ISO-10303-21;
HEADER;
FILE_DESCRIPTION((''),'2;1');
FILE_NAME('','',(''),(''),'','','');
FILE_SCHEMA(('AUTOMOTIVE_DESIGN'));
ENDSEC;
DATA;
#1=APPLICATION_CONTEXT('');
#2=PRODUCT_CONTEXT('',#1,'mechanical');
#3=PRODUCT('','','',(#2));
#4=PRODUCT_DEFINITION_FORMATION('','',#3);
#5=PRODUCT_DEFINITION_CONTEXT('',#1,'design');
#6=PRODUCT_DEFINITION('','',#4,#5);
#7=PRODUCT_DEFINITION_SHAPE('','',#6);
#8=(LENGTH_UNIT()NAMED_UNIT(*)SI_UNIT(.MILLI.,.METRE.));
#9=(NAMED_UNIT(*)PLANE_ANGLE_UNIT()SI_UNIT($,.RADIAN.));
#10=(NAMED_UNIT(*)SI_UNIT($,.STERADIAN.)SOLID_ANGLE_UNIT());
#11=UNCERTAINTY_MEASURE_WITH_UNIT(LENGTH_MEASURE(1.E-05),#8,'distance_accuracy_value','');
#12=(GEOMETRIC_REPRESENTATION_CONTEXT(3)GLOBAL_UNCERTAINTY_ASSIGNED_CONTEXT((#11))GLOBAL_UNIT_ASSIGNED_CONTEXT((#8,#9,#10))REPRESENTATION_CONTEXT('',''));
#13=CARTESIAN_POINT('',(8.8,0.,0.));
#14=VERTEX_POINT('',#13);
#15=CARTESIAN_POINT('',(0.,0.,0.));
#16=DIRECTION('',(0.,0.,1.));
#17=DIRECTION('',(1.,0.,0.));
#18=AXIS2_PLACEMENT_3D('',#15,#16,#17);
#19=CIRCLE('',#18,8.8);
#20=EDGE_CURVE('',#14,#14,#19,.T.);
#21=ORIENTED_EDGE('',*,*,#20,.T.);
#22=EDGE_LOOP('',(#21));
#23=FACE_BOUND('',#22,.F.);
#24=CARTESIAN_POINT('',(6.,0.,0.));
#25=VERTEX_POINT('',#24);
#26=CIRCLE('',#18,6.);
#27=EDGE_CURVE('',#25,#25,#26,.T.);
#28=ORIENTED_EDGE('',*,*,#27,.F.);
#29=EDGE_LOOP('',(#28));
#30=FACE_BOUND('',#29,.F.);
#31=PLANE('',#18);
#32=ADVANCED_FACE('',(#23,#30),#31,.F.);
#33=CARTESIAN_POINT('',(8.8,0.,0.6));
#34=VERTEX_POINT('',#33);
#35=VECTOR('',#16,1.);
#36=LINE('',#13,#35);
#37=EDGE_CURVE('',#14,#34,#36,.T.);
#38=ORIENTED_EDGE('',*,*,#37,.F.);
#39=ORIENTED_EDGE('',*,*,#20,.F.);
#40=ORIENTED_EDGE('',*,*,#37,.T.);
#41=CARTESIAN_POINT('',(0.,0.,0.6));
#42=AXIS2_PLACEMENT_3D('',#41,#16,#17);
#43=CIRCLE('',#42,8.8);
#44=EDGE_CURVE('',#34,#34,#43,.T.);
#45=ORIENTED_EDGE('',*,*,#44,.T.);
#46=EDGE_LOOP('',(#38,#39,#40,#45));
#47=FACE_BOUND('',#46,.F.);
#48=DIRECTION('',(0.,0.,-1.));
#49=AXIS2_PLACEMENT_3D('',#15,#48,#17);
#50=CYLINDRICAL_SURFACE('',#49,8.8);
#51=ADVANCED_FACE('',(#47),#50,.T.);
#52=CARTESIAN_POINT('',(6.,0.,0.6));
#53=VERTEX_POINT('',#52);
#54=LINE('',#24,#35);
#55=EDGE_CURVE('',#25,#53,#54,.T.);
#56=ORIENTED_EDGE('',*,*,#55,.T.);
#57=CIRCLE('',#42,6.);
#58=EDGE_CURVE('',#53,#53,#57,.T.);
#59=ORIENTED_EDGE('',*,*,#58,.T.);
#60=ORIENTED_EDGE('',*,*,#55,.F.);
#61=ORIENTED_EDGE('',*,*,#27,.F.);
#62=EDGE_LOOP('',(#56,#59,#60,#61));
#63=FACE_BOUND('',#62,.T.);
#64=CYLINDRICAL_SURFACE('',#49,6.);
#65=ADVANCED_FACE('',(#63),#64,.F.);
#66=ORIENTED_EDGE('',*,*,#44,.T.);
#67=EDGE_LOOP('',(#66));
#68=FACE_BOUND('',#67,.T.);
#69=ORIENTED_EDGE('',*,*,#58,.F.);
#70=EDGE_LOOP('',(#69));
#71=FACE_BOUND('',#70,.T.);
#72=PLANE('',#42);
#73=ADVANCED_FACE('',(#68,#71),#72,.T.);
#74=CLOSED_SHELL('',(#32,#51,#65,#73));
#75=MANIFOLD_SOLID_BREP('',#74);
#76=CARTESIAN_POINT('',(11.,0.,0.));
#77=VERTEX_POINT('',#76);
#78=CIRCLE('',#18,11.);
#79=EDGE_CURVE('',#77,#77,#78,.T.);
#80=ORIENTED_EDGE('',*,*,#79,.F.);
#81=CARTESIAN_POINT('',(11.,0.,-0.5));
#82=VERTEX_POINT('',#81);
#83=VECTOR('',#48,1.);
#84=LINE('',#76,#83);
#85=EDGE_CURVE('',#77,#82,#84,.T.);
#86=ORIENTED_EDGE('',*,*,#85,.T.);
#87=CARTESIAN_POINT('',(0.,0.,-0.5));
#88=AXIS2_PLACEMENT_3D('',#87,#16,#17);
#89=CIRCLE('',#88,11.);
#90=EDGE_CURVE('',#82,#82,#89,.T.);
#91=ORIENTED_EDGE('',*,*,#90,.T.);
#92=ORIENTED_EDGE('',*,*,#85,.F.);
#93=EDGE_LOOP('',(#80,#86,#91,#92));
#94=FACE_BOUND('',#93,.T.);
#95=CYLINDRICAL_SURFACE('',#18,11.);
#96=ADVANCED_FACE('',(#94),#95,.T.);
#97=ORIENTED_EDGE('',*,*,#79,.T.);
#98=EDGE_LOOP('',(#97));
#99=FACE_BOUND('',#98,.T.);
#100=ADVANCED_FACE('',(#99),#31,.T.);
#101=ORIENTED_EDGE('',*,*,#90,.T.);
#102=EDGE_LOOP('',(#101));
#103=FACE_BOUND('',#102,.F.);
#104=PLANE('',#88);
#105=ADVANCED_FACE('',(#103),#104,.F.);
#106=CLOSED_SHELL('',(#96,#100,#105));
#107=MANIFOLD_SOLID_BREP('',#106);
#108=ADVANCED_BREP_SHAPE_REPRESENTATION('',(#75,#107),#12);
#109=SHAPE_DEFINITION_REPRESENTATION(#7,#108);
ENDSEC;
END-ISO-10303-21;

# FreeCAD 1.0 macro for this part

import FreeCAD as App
import Part
import Sketcher
from FreeCAD import Vector

doc = App.newDocument("Part")
body = doc.addObject("PartDesign::Body", "Body")

sketch1 = doc.addObject("Sketcher::SketchObject", "Sketch")
body.addObject(sketch1)
sketch1.AttachmentSupport = (doc.XY_Plane, [""])
sketch1.MapMode = "FlatFace"
sketch1.addGeometry(Part.Circle(Vector(0, 0, 0), Vector(0, 0, 1), 9), False)
sketch1.addGeometry(Part.Circle(Vector(0, 0, 0), Vector(0, 0, 1), 6), False)
sketch1.addConstraint(Sketcher.Constraint("Coincident", 0, 3, -1, 1))
sketch1.addConstraint(Sketcher.Constraint("Coincident", 1, 3, -1, 1))
sketch1.addConstraint(Sketcher.Constraint("Diameter", 1, 12.0))
sketch1.addConstraint(Sketcher.Constraint("Diameter", 0, 17.6))
pad1 = doc.addObject("PartDesign::Pad", "Pad")
body.addObject(pad1)
pad1.Profile = sketch1
pad1.Length = 0.6
body2 = doc.addObject("PartDesign::Body", "Body001")

sketch2 = doc.addObject("Sketcher::SketchObject", "Sketch001")
body2.addObject(sketch2)
sketch2.AttachmentSupport = (doc.getObject("XY_Plane001"), [""])
sketch2.MapMode = "FlatFace"
sketch2.addGeometry(Part.Circle(Vector(0, 0, 0), Vector(0, 0, 1), 11), False)
sketch2.addConstraint(Sketcher.Constraint("Coincident", 0, 3, -1, 1))
sketch2.addConstraint(Sketcher.Constraint("Diameter", 0, 22.0))
pad2 = doc.addObject("PartDesign::Pad", "Pad001")
body2.addObject(pad2)
pad2.Profile = sketch2
pad2.Length = 0.5
pad2.Reversed = True

doc.recompute()
